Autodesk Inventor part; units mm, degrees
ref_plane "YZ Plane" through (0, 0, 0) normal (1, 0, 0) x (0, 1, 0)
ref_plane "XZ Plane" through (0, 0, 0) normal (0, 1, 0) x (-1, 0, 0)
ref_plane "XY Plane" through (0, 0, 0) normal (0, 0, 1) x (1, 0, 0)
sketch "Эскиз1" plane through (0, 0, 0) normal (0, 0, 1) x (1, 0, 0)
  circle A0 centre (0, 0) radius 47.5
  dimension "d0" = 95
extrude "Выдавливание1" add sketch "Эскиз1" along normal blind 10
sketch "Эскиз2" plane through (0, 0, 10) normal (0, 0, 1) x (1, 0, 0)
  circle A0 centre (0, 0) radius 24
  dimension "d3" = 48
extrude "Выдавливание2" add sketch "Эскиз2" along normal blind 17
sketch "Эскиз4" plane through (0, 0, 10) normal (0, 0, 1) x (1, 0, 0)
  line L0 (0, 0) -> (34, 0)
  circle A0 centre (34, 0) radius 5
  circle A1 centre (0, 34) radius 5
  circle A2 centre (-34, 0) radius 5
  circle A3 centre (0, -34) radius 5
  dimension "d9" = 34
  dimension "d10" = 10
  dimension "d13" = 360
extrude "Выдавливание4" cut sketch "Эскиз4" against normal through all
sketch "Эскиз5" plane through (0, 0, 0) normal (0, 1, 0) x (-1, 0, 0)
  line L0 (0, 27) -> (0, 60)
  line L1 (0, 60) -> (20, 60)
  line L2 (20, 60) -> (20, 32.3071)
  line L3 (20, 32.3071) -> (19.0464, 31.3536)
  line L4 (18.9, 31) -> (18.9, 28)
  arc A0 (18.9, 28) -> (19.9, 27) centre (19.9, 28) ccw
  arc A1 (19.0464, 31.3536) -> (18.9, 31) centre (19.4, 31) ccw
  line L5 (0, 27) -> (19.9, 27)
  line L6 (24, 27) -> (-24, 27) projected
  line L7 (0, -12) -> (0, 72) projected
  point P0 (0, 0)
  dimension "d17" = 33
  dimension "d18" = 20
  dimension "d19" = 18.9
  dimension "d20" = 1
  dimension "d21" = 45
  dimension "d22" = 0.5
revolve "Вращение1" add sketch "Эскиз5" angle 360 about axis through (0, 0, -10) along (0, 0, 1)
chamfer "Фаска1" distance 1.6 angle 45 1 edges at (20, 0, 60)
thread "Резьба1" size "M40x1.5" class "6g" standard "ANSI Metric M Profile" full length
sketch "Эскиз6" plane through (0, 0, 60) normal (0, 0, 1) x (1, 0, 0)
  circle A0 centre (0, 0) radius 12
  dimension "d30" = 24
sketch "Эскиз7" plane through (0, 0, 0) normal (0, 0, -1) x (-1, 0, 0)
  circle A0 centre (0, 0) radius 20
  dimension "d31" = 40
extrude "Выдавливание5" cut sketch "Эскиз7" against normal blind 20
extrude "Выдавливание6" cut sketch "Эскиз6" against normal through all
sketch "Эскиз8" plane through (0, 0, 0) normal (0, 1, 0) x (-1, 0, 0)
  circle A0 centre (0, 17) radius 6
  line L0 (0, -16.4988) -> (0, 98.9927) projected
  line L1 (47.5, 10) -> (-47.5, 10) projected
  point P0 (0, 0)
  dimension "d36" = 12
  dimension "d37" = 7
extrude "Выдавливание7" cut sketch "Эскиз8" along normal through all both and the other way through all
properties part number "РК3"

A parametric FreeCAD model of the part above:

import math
import FreeCAD as App
import Part
import Sketcher
from FreeCAD import Vector
Q = App.Units.Quantity


def edges_at(feature, points):
    """Names of the edges that pass closest to the given points."""
    edges = feature.Shape.Edges
    near = lambda p: min(range(len(edges)), key=lambda i: edges[i].distToShape(Part.Vertex(*p))[0])
    return sorted({f"Edge{near(p) + 1}" for p in points})

doc = App.newDocument("Part")
body = doc.addObject("PartDesign::Body", "Body")

sketch1 = body.newObject("Sketcher::SketchObject", "Sketch")
sketch1.AttachmentSupport = (doc.getObject("XY_Plane"), [""])
sketch1.MapMode = "FlatFace"
sketch1.addGeometry(Part.Circle(Vector(0, 0, 0), Vector(0, 0, 1), 48), False)
sketch1.addConstraint([
    Sketcher.Constraint("Coincident", 0, 3, -1, 1),
    Sketcher.Constraint("Diameter", 0, Q("95 mm")),
])
pad1 = body.newObject("PartDesign::Pad", "Pad")
pad1.Profile = sketch1
pad1.Length = 10

sketch2 = body.newObject("Sketcher::SketchObject", "Sketch001")
sketch2.AttachmentSupport = (doc.getObject("XY_Plane"), [""])
sketch2.MapMode = "FlatFace"
sketch2.AttachmentOffset = App.Placement(Vector(0, 0, 10), App.Rotation())
sketch2.addGeometry(Part.Circle(Vector(0, 0, 0), Vector(0, 0, 1), 24), False)
sketch2.addConstraint([
    Sketcher.Constraint("Coincident", 0, 3, -1, 1),
    Sketcher.Constraint("Diameter", 0, Q("48 mm")),
])
pad2 = body.newObject("PartDesign::Pad", "Pad001")
pad2.Profile = sketch2
pad2.Length = 17

sketch3 = body.newObject("Sketcher::SketchObject", "Sketch002")
sketch3.AttachmentSupport = (doc.getObject("XY_Plane"), [""])
sketch3.MapMode = "FlatFace"
sketch3.AttachmentOffset = App.Placement(Vector(0, 0, 10), App.Rotation())
sketch3.addGeometry([
    Part.Circle(Vector(34, 0, 0), Vector(0, 0, 1), 5),
    Part.Circle(Vector(0, 34, 0), Vector(0, 0, 1), 5),
    Part.Circle(Vector(-34, 0, 0), Vector(0, 0, 1), 5),
    Part.Circle(Vector(0, -34, 0), Vector(0, 0, 1), 5),
], False)
sketch3.addConstraint([
    Sketcher.Constraint("Equal", 0, 1),
    Sketcher.Constraint("Equal", 1, 2),
    Sketcher.Constraint("Equal", 2, 3),
    Sketcher.Constraint("Symmetric", 0, 3, 2, 3, -1, 1),
    Sketcher.Constraint("Symmetric", 1, 3, 3, 3, -1, 1),
    Sketcher.Constraint("PointOnObject", 0, 3, -1),
    Sketcher.Constraint("PointOnObject", 1, 3, -2),
    Sketcher.Constraint("Diameter", 0, Q("10 mm")),
    Sketcher.Constraint("DistanceX", -1, 1, 0, 3, Q("34 mm")),
    Sketcher.Constraint("DistanceY", -1, 1, 1, 3, Q("34 mm")),
])
pocket1 = body.newObject("PartDesign::Pocket", "Pocket")
pocket1.Profile = sketch3
pocket1.Type = "ThroughAll"

sketch4 = body.newObject("Sketcher::SketchObject", "Sketch003")
sketch4.AttachmentSupport = (doc.getObject("XZ_Plane"), [""])
sketch4.MapMode = "FlatFace"
sketch4.addGeometry([
    Part.LineSegment(Vector(0, 60, 0), Vector(0, 27, 0)),
    Part.LineSegment(Vector(0, 27, 0), Vector(-19.9, 27, 0)),
    Part.ArcOfCircle(Part.Circle(Vector(-19.9, 28, 0), Vector(0, 0, 1), 1), math.radians(-90), math.radians(0)),
    Part.LineSegment(Vector(-18.9, 28, 0), Vector(-18.9, 31, 0)),
    Part.ArcOfCircle(Part.Circle(Vector(-19.4, 31, 0), Vector(0, 0, 1), 0.5), math.radians(0), math.radians(45)),
    Part.LineSegment(Vector(-19.05, 31.35, 0), Vector(-20, 32.31, 0)),
    Part.LineSegment(Vector(-20, 32.31, 0), Vector(-20, 60, 0)),
    Part.LineSegment(Vector(-20, 60, 0), Vector(0, 60, 0)),
], False)
sketch4.addConstraint([
    Sketcher.Constraint("Coincident", 0, 2, 1, 1),
    Sketcher.Constraint("Tangent", 1, 2, 2, 1),
    Sketcher.Constraint("Tangent", 2, 2, 3, 1),
    Sketcher.Constraint("Tangent", 3, 2, 4, 1),
    Sketcher.Constraint("Tangent", 4, 2, 5, 1),
    Sketcher.Constraint("Coincident", 5, 2, 6, 1),
    Sketcher.Constraint("Coincident", 6, 2, 7, 1),
    Sketcher.Constraint("Coincident", 7, 2, 0, 1),
    Sketcher.Constraint("Vertical", 0),
    Sketcher.Constraint("Horizontal", 1),
    Sketcher.Constraint("Vertical", 3),
    Sketcher.Constraint("Vertical", 6),
    Sketcher.Constraint("Horizontal", 7),
    Sketcher.Constraint("PointOnObject", 0, 2, -2),
    Sketcher.Constraint("Radius", 2, Q("1 mm")),
    Sketcher.Constraint("Radius", 4, Q("0.5 mm")),
    Sketcher.Constraint("DistanceX", 7, 1, 7, 2, Q("20 mm")),
    Sketcher.Constraint("DistanceY", 0, 2, 0, 1, Q("33 mm")),
    Sketcher.Constraint("DistanceX", 2, 2, -1, 1, Q("18.9 mm")),
    Sketcher.Constraint("DistanceY", 3, 1, 3, 2, Q("3 mm")),
    Sketcher.Constraint("DistanceY", -1, 1, 2, 3, Q("28 mm")),
    Sketcher.Constraint("DistanceY", 6, 1, 6, 2, Q("27.693 mm")),
])
revolution = body.newObject("PartDesign::Revolution", "Revolution")
revolution.Profile = sketch4
revolution.ReferenceAxis = (sketch4, ["V_Axis"])
revolution.Angle = 360
doc.recompute()

chamfer = body.newObject("PartDesign::Chamfer", "Chamfer")
chamfer.Base = (revolution, edges_at(revolution, [(20, 0, 60)]))
chamfer.Size = 1.6

sketch5 = body.newObject("Sketcher::SketchObject", "Sketch004")
sketch5.AttachmentSupport = (doc.getObject("XY_Plane"), [""])
sketch5.MapMode = "FlatFace"
sketch5.addGeometry(Part.Circle(Vector(0, 0, 0), Vector(0, 0, 1), 20), False)
sketch5.addConstraint([
    Sketcher.Constraint("Coincident", 0, 3, -1, 1),
    Sketcher.Constraint("Diameter", 0, Q("40 mm")),
])
pocket2 = body.newObject("PartDesign::Pocket", "Pocket001")
pocket2.Profile = sketch5
pocket2.Length = 20
pocket2.Reversed = True

sketch6 = body.newObject("Sketcher::SketchObject", "Sketch005")
sketch6.AttachmentSupport = (doc.getObject("XY_Plane"), [""])
sketch6.MapMode = "FlatFace"
sketch6.AttachmentOffset = App.Placement(Vector(0, 0, 60), App.Rotation())
sketch6.addGeometry(Part.Circle(Vector(0, 0, 0), Vector(0, 0, 1), 12), False)
sketch6.addConstraint([
    Sketcher.Constraint("Coincident", 0, 3, -1, 1),
    Sketcher.Constraint("Diameter", 0, Q("24 mm")),
])
pocket3 = body.newObject("PartDesign::Pocket", "Pocket002")
pocket3.Profile = sketch6
pocket3.Type = "ThroughAll"

sketch7 = body.newObject("Sketcher::SketchObject", "Sketch006")
sketch7.AttachmentSupport = (doc.getObject("XZ_Plane"), [""])
sketch7.MapMode = "FlatFace"
sketch7.addGeometry(Part.Circle(Vector(0, 17, 0), Vector(0, 0, 1), 6), False)
sketch7.addConstraint([
    Sketcher.Constraint("PointOnObject", 0, 3, -2),
    Sketcher.Constraint("Diameter", 0, Q("12 mm")),
    Sketcher.Constraint("DistanceY", -1, 1, 0, 3, Q("17 mm")),
])
pocket4 = body.newObject("PartDesign::Pocket", "Pocket003")
pocket4.Profile = sketch7
pocket4.Type = "ThroughAll"
pocket4.Midplane = True

doc.recompute()
